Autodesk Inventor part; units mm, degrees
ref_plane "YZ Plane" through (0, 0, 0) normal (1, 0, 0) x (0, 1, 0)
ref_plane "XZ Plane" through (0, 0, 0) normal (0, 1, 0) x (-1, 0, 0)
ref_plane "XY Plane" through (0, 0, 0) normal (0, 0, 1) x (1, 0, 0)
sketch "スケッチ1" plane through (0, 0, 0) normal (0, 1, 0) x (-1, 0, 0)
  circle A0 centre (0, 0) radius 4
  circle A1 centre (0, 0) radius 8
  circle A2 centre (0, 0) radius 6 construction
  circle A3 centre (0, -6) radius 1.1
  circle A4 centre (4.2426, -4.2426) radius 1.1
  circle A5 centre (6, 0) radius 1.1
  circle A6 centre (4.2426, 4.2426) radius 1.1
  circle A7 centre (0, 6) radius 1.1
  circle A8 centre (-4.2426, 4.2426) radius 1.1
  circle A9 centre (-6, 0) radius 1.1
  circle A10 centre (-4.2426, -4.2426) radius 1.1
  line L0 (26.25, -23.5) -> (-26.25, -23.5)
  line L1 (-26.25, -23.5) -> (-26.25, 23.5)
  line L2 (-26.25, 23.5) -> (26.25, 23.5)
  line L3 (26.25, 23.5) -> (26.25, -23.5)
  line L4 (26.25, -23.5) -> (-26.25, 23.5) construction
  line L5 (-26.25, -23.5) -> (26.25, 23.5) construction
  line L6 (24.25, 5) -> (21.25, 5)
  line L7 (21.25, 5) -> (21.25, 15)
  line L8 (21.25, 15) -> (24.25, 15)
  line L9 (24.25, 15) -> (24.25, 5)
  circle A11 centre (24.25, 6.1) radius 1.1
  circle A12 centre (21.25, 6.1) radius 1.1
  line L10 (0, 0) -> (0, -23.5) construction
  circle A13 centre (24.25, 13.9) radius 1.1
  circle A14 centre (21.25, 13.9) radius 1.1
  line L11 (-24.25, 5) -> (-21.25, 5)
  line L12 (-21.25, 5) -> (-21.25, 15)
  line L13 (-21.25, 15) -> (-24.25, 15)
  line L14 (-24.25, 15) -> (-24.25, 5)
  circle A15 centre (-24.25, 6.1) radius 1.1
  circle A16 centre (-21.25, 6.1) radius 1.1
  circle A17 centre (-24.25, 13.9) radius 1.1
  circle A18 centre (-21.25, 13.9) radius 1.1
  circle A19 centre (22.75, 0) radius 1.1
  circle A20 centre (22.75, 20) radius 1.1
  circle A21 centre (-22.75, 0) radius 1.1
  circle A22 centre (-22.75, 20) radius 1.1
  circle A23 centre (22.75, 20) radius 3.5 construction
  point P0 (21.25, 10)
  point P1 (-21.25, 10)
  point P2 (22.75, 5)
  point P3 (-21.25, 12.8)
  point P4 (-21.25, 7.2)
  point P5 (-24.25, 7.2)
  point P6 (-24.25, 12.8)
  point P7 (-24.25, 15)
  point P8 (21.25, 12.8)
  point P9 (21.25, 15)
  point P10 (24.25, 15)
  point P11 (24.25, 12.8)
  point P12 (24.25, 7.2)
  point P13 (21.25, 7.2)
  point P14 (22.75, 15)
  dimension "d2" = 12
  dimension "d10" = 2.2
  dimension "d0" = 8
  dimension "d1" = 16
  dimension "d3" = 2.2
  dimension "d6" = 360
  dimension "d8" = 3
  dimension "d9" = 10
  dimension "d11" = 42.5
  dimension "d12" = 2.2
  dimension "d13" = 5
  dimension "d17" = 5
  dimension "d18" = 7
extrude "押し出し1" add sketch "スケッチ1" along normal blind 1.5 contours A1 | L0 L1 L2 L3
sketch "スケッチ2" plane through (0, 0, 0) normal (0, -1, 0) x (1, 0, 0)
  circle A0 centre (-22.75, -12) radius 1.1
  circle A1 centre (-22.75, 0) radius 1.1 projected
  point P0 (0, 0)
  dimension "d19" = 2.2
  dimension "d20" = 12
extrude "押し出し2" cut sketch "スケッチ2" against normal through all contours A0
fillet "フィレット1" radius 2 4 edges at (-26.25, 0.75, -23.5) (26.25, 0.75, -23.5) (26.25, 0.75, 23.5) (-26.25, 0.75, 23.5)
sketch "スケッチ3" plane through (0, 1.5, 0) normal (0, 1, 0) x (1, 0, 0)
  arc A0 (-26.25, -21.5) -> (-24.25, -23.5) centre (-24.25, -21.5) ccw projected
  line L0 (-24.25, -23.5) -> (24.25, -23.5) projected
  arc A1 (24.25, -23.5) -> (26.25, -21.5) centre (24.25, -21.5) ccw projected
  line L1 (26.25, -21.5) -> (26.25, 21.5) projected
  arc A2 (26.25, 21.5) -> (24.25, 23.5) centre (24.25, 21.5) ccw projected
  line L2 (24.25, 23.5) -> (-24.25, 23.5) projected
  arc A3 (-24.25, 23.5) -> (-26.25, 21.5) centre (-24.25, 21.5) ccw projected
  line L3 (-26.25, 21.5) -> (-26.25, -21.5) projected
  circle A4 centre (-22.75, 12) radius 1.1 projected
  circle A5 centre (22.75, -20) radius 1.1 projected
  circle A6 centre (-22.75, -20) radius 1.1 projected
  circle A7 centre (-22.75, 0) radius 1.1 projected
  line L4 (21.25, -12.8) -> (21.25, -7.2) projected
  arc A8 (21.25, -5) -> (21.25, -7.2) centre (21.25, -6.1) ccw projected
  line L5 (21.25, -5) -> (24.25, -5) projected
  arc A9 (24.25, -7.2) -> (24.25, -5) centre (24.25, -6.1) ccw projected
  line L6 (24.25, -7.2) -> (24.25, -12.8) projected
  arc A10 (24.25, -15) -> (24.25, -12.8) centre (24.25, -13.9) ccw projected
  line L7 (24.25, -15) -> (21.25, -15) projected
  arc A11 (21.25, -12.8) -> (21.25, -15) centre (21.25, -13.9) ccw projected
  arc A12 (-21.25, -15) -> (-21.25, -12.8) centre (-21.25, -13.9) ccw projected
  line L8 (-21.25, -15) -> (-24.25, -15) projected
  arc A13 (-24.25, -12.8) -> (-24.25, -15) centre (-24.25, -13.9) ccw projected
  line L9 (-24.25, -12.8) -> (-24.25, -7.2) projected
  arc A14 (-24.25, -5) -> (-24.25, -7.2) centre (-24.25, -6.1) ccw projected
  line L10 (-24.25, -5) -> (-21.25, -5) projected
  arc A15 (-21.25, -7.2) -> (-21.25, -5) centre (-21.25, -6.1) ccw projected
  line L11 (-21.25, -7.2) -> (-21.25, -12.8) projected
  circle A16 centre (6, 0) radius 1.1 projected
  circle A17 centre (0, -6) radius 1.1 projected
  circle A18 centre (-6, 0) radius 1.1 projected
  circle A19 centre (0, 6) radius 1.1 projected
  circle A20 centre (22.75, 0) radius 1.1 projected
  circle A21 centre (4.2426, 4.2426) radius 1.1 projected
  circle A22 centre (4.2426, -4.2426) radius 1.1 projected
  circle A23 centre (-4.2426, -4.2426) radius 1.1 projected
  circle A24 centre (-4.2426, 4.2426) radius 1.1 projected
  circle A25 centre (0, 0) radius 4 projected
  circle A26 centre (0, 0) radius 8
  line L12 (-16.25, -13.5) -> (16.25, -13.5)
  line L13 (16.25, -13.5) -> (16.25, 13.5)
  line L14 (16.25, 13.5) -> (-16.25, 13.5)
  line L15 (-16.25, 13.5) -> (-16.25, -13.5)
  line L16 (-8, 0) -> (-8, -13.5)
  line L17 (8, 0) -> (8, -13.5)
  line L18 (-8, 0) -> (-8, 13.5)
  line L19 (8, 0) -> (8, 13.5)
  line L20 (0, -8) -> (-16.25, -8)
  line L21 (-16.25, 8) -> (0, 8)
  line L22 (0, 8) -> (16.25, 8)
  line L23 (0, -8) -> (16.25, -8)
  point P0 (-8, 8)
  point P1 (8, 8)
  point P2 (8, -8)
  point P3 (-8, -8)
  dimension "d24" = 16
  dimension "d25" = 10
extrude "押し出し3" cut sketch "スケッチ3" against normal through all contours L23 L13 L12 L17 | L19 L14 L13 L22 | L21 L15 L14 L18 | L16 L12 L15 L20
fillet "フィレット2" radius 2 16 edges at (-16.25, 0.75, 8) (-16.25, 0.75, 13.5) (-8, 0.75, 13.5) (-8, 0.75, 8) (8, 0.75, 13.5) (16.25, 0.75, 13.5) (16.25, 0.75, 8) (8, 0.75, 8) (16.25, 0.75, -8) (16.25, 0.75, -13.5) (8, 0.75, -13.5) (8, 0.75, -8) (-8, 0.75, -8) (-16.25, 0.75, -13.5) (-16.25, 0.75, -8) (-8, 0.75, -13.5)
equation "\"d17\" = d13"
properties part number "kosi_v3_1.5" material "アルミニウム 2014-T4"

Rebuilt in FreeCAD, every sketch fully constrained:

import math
import FreeCAD as App
import Part
import Sketcher

V = App.Vector


def edges_at(feature, points):
    """Names of the edges that pass closest to the given points."""
    edges = feature.Shape.Edges
    near = lambda p: min(range(len(edges)), key=lambda i: edges[i].distToShape(Part.Vertex(*p))[0])
    return sorted({f"Edge{near(p) + 1}" for p in points})

doc = App.newDocument("Part")
body = doc.addObject("PartDesign::Body", "Body")

# Sketch on XZ plane
sketch1 = body.newObject("Sketcher::SketchObject", "Sketch")
sketch1.AttachmentSupport = (doc.getObject("XZ_Plane"), [""])
sketch1.MapMode = "FlatFace"
sketch1.addGeometry(Part.LineSegment(V(26.25, -23.5, 0), V(-26.25, -23.5, 0)), False)
sketch1.addGeometry(Part.LineSegment(V(-26.25, -23.5, 0), V(-26.25, 23.5, 0)), False)
sketch1.addGeometry(Part.LineSegment(V(-26.25, 23.5, 0), V(26.25, 23.5, 0)), False)
sketch1.addGeometry(Part.LineSegment(V(26.25, 23.5, 0), V(26.25, -23.5, 0)), False)
sketch1.addGeometry(Part.Circle(V(4.2426, -4.2426, 0), V(0, 0, 1), 1.1), False)
sketch1.addGeometry(Part.Circle(V(0, -6, 0), V(0, 0, 1), 1.1), False)
sketch1.addGeometry(Part.Circle(V(-4.2426, -4.2426, 0), V(0, 0, 1), 1.1), False)
sketch1.addGeometry(Part.Circle(V(6, 0, 0), V(0, 0, 1), 1.1), False)
sketch1.addGeometry(Part.Circle(V(4.2426, 4.2426, 0), V(0, 0, 1), 1.1), False)
sketch1.addGeometry(Part.Circle(V(0, 0, 0), V(0, 0, 1), 4), False)
sketch1.addGeometry(Part.Circle(V(-6, 0, 0), V(0, 0, 1), 1.1), False)
sketch1.addGeometry(Part.Circle(V(-4.2426, 4.2426, 0), V(0, 0, 1), 1.1), False)
sketch1.addGeometry(Part.Circle(V(0, 6, 0), V(0, 0, 1), 1.1), False)
sketch1.addGeometry(Part.Circle(V(22.75, 0, 0), V(0, 0, 1), 1.1), False)
sketch1.addGeometry(Part.LineSegment(V(21.25, 5, 0), V(24.25, 5, 0)), False)
sketch1.addGeometry(Part.ArcOfCircle(Part.Circle(V(24.25, 6.1, 0), V(0, 0, 1), 1.1), math.radians(-90), math.radians(90)), False)
sketch1.addGeometry(Part.LineSegment(V(24.25, 7.2, 0), V(24.25, 12.8, 0)), False)
sketch1.addGeometry(Part.ArcOfCircle(Part.Circle(V(24.25, 13.9, 0), V(0, 0, 1), 1.1), math.radians(-90), math.radians(90)), False)
sketch1.addGeometry(Part.LineSegment(V(24.25, 15, 0), V(21.25, 15, 0)), False)
sketch1.addGeometry(Part.ArcOfCircle(Part.Circle(V(21.25, 13.9, 0), V(0, 0, 1), 1.1), math.radians(90), math.radians(270)), False)
sketch1.addGeometry(Part.LineSegment(V(21.25, 12.8, 0), V(21.25, 7.2, 0)), False)
sketch1.addGeometry(Part.ArcOfCircle(Part.Circle(V(21.25, 6.1, 0), V(0, 0, 1), 1.1), math.radians(90), math.radians(270)), False)
sketch1.addGeometry(Part.Circle(V(22.75, 20, 0), V(0, 0, 1), 1.1), False)
sketch1.addGeometry(Part.Circle(V(-22.75, 20, 0), V(0, 0, 1), 1.1), False)
sketch1.addGeometry(Part.Circle(V(-22.75, 0, 0), V(0, 0, 1), 1.1), False)
sketch1.addGeometry(Part.LineSegment(V(-24.25, 5, 0), V(-21.25, 5, 0)), False)
sketch1.addGeometry(Part.ArcOfCircle(Part.Circle(V(-21.25, 6.1, 0), V(0, 0, 1), 1.1), math.radians(-90), math.radians(90)), False)
sketch1.addGeometry(Part.LineSegment(V(-21.25, 7.2, 0), V(-21.25, 12.8, 0)), False)
sketch1.addGeometry(Part.ArcOfCircle(Part.Circle(V(-21.25, 13.9, 0), V(0, 0, 1), 1.1), math.radians(-90), math.radians(90)), False)
sketch1.addGeometry(Part.LineSegment(V(-21.25, 15, 0), V(-24.25, 15, 0)), False)
sketch1.addGeometry(Part.ArcOfCircle(Part.Circle(V(-24.25, 13.9, 0), V(0, 0, 1), 1.1), math.radians(90), math.radians(270)), False)
sketch1.addGeometry(Part.LineSegment(V(-24.25, 12.8, 0), V(-24.25, 7.2, 0)), False)
sketch1.addGeometry(Part.ArcOfCircle(Part.Circle(V(-24.25, 6.1, 0), V(0, 0, 1), 1.1), math.radians(90), math.radians(270)), False)
sketch1.addConstraint(Sketcher.Constraint("Coincident", 0, 2, 1, 1))
sketch1.addConstraint(Sketcher.Constraint("Coincident", 1, 2, 2, 1))
sketch1.addConstraint(Sketcher.Constraint("Coincident", 2, 2, 3, 1))
sketch1.addConstraint(Sketcher.Constraint("Coincident", 3, 2, 0, 1))
sketch1.addConstraint(Sketcher.Constraint("Tangent", 14, 2, 15, 1))
sketch1.addConstraint(Sketcher.Constraint("Coincident", 15, 2, 16, 1))
sketch1.addConstraint(Sketcher.Constraint("Coincident", 16, 2, 17, 1))
sketch1.addConstraint(Sketcher.Constraint("Tangent", 17, 2, 18, 1))
sketch1.addConstraint(Sketcher.Constraint("Tangent", 18, 2, 19, 1))
sketch1.addConstraint(Sketcher.Constraint("Coincident", 19, 2, 20, 1))
sketch1.addConstraint(Sketcher.Constraint("Coincident", 20, 2, 21, 1))
sketch1.addConstraint(Sketcher.Constraint("Tangent", 21, 2, 14, 1))
sketch1.addConstraint(Sketcher.Constraint("Tangent", 25, 2, 26, 1))
sketch1.addConstraint(Sketcher.Constraint("Coincident", 26, 2, 27, 1))
sketch1.addConstraint(Sketcher.Constraint("Coincident", 27, 2, 28, 1))
sketch1.addConstraint(Sketcher.Constraint("Tangent", 28, 2, 29, 1))
sketch1.addConstraint(Sketcher.Constraint("Tangent", 29, 2, 30, 1))
sketch1.addConstraint(Sketcher.Constraint("Coincident", 30, 2, 31, 1))
sketch1.addConstraint(Sketcher.Constraint("Coincident", 31, 2, 32, 1))
sketch1.addConstraint(Sketcher.Constraint("Tangent", 32, 2, 25, 1))
sketch1.addConstraint(Sketcher.Constraint("Horizontal", 0))
sketch1.addConstraint(Sketcher.Constraint("Vertical", 1))
sketch1.addConstraint(Sketcher.Constraint("Horizontal", 2))
sketch1.addConstraint(Sketcher.Constraint("Vertical", 3))
sketch1.addConstraint(Sketcher.Constraint("Horizontal", 14))
sketch1.addConstraint(Sketcher.Constraint("Vertical", 16))
sketch1.addConstraint(Sketcher.Constraint("Horizontal", 18))
sketch1.addConstraint(Sketcher.Constraint("Vertical", 20))
sketch1.addConstraint(Sketcher.Constraint("Horizontal", 25))
sketch1.addConstraint(Sketcher.Constraint("Vertical", 27))
sketch1.addConstraint(Sketcher.Constraint("Horizontal", 29))
sketch1.addConstraint(Sketcher.Constraint("Vertical", 31))
sketch1.addConstraint(Sketcher.Constraint("Coincident", 9, 3, -1, 1))
sketch1.addConstraint(Sketcher.Constraint("Equal", 4, 5))
sketch1.addConstraint(Sketcher.Constraint("Equal", 5, 6))
sketch1.addConstraint(Sketcher.Constraint("Equal", 6, 7))
sketch1.addConstraint(Sketcher.Constraint("Equal", 7, 8))
sketch1.addConstraint(Sketcher.Constraint("Equal", 8, 10))
sketch1.addConstraint(Sketcher.Constraint("Equal", 10, 11))
sketch1.addConstraint(Sketcher.Constraint("Equal", 11, 12))
sketch1.addConstraint(Sketcher.Constraint("Equal", 12, 13))
sketch1.addConstraint(Sketcher.Constraint("Equal", 13, 15))
sketch1.addConstraint(Sketcher.Constraint("Equal", 15, 17))
sketch1.addConstraint(Sketcher.Constraint("Equal", 17, 19))
sketch1.addConstraint(Sketcher.Constraint("Equal", 19, 21))
sketch1.addConstraint(Sketcher.Constraint("Equal", 21, 22))
sketch1.addConstraint(Sketcher.Constraint("Equal", 22, 23))
sketch1.addConstraint(Sketcher.Constraint("Equal", 23, 24))
sketch1.addConstraint(Sketcher.Constraint("Equal", 24, 26))
sketch1.addConstraint(Sketcher.Constraint("Equal", 26, 28))
sketch1.addConstraint(Sketcher.Constraint("Equal", 28, 30))
sketch1.addConstraint(Sketcher.Constraint("Equal", 30, 32))
sketch1.addConstraint(Sketcher.Constraint("Symmetric", 6, 3, 8, 3, -1, 1))
sketch1.addConstraint(Sketcher.Constraint("Symmetric", 7, 3, 10, 3, -1, 1))
sketch1.addConstraint(Sketcher.Constraint("Symmetric", 4, 3, 11, 3, -1, 1))
sketch1.addConstraint(Sketcher.Constraint("Symmetric", 5, 3, 12, 3, -1, 1))
sketch1.addConstraint(Sketcher.Constraint("Symmetric", 13, 3, 24, 3, -1, 1))
sketch1.addConstraint(Sketcher.Constraint("Symmetric", 0, 2, 2, 2, -1, 1))
sketch1.addConstraint(Sketcher.Constraint("Symmetric", 4, 3, 6, 3, -2))
sketch1.addConstraint(Sketcher.Constraint("Symmetric", 22, 3, 23, 3, -2))
sketch1.addConstraint(Sketcher.Constraint("Symmetric", 21, 3, 26, 3, -2))
sketch1.addConstraint(Sketcher.Constraint("Symmetric", 19, 3, 28, 3, -2))
sketch1.addConstraint(Sketcher.Constraint("PointOnObject", 5, 3, -2))
sketch1.addConstraint(Sketcher.Constraint("PointOnObject", 7, 3, -1))
sketch1.addConstraint(Sketcher.Constraint("PointOnObject", 13, 3, -1))
sketch1.addConstraint(Sketcher.Constraint("Vertical", 15, 3, 17, 3))
sketch1.addConstraint(Sketcher.Constraint("Vertical", 19, 3, 21, 3))
sketch1.addConstraint(Sketcher.Constraint("Vertical", 13, 3, 22, 3))
sketch1.addConstraint(Sketcher.Constraint("Vertical", 30, 3, 32, 3))
sketch1.addConstraint(Sketcher.Constraint("Vertical", 14, 2, 15, 2))
sketch1.addConstraint(Sketcher.Constraint("Vertical", 18, 2, 19, 2))
sketch1.addConstraint(Sketcher.Constraint("Vertical", 25, 2, 26, 2))
sketch1.addConstraint(Sketcher.Constraint("Vertical", 29, 2, 30, 2))
sketch1.addConstraint(Sketcher.Constraint("Equal", 18, 25))
sketch1.addConstraint(Sketcher.Constraint("Diameter", 9, 8.0))
sketch1.addConstraint(Sketcher.Constraint("Diameter", 4, 2.2))
sketch1.addConstraint(Sketcher.Constraint("DistanceX", 14, 1, 14, 2, 3.0))
sketch1.addConstraint(Sketcher.Constraint("DistanceY", -1, 1, 14, 2, 5.0))
sketch1.addConstraint(Sketcher.Constraint("DistanceX", 0, 2, 26, 3, 5.0))
sketch1.addConstraint(Sketcher.Constraint("DistanceY", 17, 2, 22, 3, 5.0))
sketch1.addConstraint(Sketcher.Constraint("DistanceY", 1, 1, 1, 2, 47.0))
sketch1.addConstraint(Sketcher.Constraint("DistanceX", 0, 2, 0, 1, 52.5))
sketch1.addConstraint(Sketcher.Constraint("DistanceY", 16, 1, 16, 2, 5.6))
sketch1.addConstraint(Sketcher.Constraint("DistanceY", 5, 3, -1, 1, 6.0))
sketch1.addConstraint(Sketcher.Constraint("DistanceX", -1, 1, 7, 3, 6.0))
sketch1.addConstraint(Sketcher.Constraint("DistanceX", 13, 3, 15, 3, 1.5))
sketch1.addConstraint(Sketcher.Constraint("DistanceX", -1, 1, 4, 3, 4.2426))
sketch1.addConstraint(Sketcher.Constraint("DistanceY", 4, 3, -1, 1, 4.2426))
pad1 = body.newObject("PartDesign::Pad", "Pad")
pad1.Profile = sketch1
pad1.Length = 1.5
pad1.Reversed = True

# Sketch on XZ plane
sketch2 = body.newObject("Sketcher::SketchObject", "Sketch001")
sketch2.AttachmentSupport = (doc.getObject("XZ_Plane"), [""])
sketch2.MapMode = "FlatFace"
sketch2.addGeometry(Part.Circle(V(-22.75, -12, 0), V(0, 0, 1), 1.1), False)
sketch2.addConstraint(Sketcher.Constraint("Diameter", 0, 2.2))
sketch2.addConstraint(Sketcher.Constraint("DistanceY", 0, 3, -1, 1, 12.0))
sketch2.addConstraint(Sketcher.Constraint("DistanceX", 0, 3, -1, 1, 22.75))
pocket1 = body.newObject("PartDesign::Pocket", "Pocket")
pocket1.Profile = sketch2
pocket1.Type = "ThroughAll"
doc.recompute()

fillet = body.newObject("PartDesign::Fillet", "Fillet")
fillet.Base = (pocket1, edges_at(pocket1, [
    (-26.25, 0.75, -23.5),
    (26.25, 0.75, -23.5),
    (26.25, 0.75, 23.5),
    (-26.25, 0.75, 23.5),
]))
fillet.Radius = 2

# Sketch on XZ plane
sketch3 = body.newObject("Sketcher::SketchObject", "Sketch002")
sketch3.AttachmentSupport = (doc.getObject("XZ_Plane"), [""])
sketch3.MapMode = "FlatFace"
sketch3.AttachmentOffset = App.Placement(V(0, 0, -1.5), App.Rotation())
sketch3.addGeometry(Part.LineSegment(V(16.25, 8, 0), V(8, 8, 0)), False)
sketch3.addGeometry(Part.LineSegment(V(8, 8, 0), V(8, 13.5, 0)), False)
sketch3.addGeometry(Part.LineSegment(V(8, 13.5, 0), V(16.25, 13.5, 0)), False)
sketch3.addGeometry(Part.LineSegment(V(16.25, 13.5, 0), V(16.25, 8, 0)), False)
sketch3.addGeometry(Part.LineSegment(V(8, -13.5, 0), V(8, -8, 0)), False)
sketch3.addGeometry(Part.LineSegment(V(8, -8, 0), V(16.25, -8, 0)), False)
sketch3.addGeometry(Part.LineSegment(V(16.25, -8, 0), V(16.25, -13.5, 0)), False)
sketch3.addGeometry(Part.LineSegment(V(16.25, -13.5, 0), V(8, -13.5, 0)), False)
sketch3.addGeometry(Part.LineSegment(V(-16.25, -8, 0), V(-8, -8, 0)), False)
sketch3.addGeometry(Part.LineSegment(V(-8, -8, 0), V(-8, -13.5, 0)), False)
sketch3.addGeometry(Part.LineSegment(V(-8, -13.5, 0), V(-16.25, -13.5, 0)), False)
sketch3.addGeometry(Part.LineSegment(V(-16.25, -13.5, 0), V(-16.25, -8, 0)), False)
sketch3.addGeometry(Part.LineSegment(V(-8, 13.5, 0), V(-8, 8, 0)), False)
sketch3.addGeometry(Part.LineSegment(V(-8, 8, 0), V(-16.25, 8, 0)), False)
sketch3.addGeometry(Part.LineSegment(V(-16.25, 8, 0), V(-16.25, 13.5, 0)), False)
sketch3.addGeometry(Part.LineSegment(V(-16.25, 13.5, 0), V(-8, 13.5, 0)), False)
sketch3.addConstraint(Sketcher.Constraint("Coincident", 0, 2, 1, 1))
sketch3.addConstraint(Sketcher.Constraint("Coincident", 1, 2, 2, 1))
sketch3.addConstraint(Sketcher.Constraint("Coincident", 2, 2, 3, 1))
sketch3.addConstraint(Sketcher.Constraint("Coincident", 3, 2, 0, 1))
sketch3.addConstraint(Sketcher.Constraint("Coincident", 4, 2, 5, 1))
sketch3.addConstraint(Sketcher.Constraint("Coincident", 5, 2, 6, 1))
sketch3.addConstraint(Sketcher.Constraint("Coincident", 6, 2, 7, 1))
sketch3.addConstraint(Sketcher.Constraint("Coincident", 7, 2, 4, 1))
sketch3.addConstraint(Sketcher.Constraint("Coincident", 8, 2, 9, 1))
sketch3.addConstraint(Sketcher.Constraint("Coincident", 9, 2, 10, 1))
sketch3.addConstraint(Sketcher.Constraint("Coincident", 10, 2, 11, 1))
sketch3.addConstraint(Sketcher.Constraint("Coincident", 11, 2, 8, 1))
sketch3.addConstraint(Sketcher.Constraint("Coincident", 12, 2, 13, 1))
sketch3.addConstraint(Sketcher.Constraint("Coincident", 13, 2, 14, 1))
sketch3.addConstraint(Sketcher.Constraint("Coincident", 14, 2, 15, 1))
sketch3.addConstraint(Sketcher.Constraint("Coincident", 15, 2, 12, 1))
sketch3.addConstraint(Sketcher.Constraint("Horizontal", 0))
sketch3.addConstraint(Sketcher.Constraint("Vertical", 1))
sketch3.addConstraint(Sketcher.Constraint("Horizontal", 2))
sketch3.addConstraint(Sketcher.Constraint("Vertical", 3))
sketch3.addConstraint(Sketcher.Constraint("Vertical", 4))
sketch3.addConstraint(Sketcher.Constraint("Horizontal", 5))
sketch3.addConstraint(Sketcher.Constraint("Vertical", 6))
sketch3.addConstraint(Sketcher.Constraint("Horizontal", 7))
sketch3.addConstraint(Sketcher.Constraint("Horizontal", 8))
sketch3.addConstraint(Sketcher.Constraint("Vertical", 9))
sketch3.addConstraint(Sketcher.Constraint("Horizontal", 10))
sketch3.addConstraint(Sketcher.Constraint("Vertical", 11))
sketch3.addConstraint(Sketcher.Constraint("Vertical", 12))
sketch3.addConstraint(Sketcher.Constraint("Horizontal", 13))
sketch3.addConstraint(Sketcher.Constraint("Vertical", 14))
sketch3.addConstraint(Sketcher.Constraint("Horizontal", 15))
sketch3.addConstraint(Sketcher.Constraint("Symmetric", 0, 2, 8, 2, -1, 1))
sketch3.addConstraint(Sketcher.Constraint("Symmetric", 2, 2, 10, 2, -1, 1))
sketch3.addConstraint(Sketcher.Constraint("Symmetric", 4, 2, 12, 2, -1, 1))
sketch3.addConstraint(Sketcher.Constraint("Symmetric", 6, 2, 14, 2, -1, 1))
sketch3.addConstraint(Sketcher.Constraint("Symmetric", 4, 2, 8, 2, -2))
sketch3.addConstraint(Sketcher.Constraint("Symmetric", 6, 2, 10, 2, -2))
sketch3.addConstraint(Sketcher.Constraint("DistanceY", 4, 2, 0, 2, 16.0))
sketch3.addConstraint(Sketcher.Constraint("DistanceX", 8, 2, 4, 2, 16.0))
sketch3.addConstraint(Sketcher.Constraint("DistanceY", 1, 1, 1, 2, 5.5))
sketch3.addConstraint(Sketcher.Constraint("DistanceX", 0, 2, 0, 1, 8.25))
pocket2 = body.newObject("PartDesign::Pocket", "Pocket001")
pocket2.Profile = sketch3
pocket2.Type = "ThroughAll"
pocket2.Reversed = True
doc.recompute()

fillet2 = body.newObject("PartDesign::Fillet", "Fillet001")
fillet2.Base = (pocket2, edges_at(pocket2, [
    (-16.25, 0.75, 8),
    (-16.25, 0.75, 13.5),
    (-8, 0.75, 13.5),
    (-8, 0.75, 8),
    (8, 0.75, 13.5),
    (16.25, 0.75, 13.5),
    (16.25, 0.75, 8),
    (8, 0.75, 8),
    (16.25, 0.75, -8),
    (16.25, 0.75, -13.5),
    (8, 0.75, -13.5),
    (8, 0.75, -8),
    (-8, 0.75, -8),
    (-16.25, 0.75, -13.5),
    (-16.25, 0.75, -8),
    (-8, 0.75, -13.5),
]))
fillet2.Radius = 2

doc.recompute()
